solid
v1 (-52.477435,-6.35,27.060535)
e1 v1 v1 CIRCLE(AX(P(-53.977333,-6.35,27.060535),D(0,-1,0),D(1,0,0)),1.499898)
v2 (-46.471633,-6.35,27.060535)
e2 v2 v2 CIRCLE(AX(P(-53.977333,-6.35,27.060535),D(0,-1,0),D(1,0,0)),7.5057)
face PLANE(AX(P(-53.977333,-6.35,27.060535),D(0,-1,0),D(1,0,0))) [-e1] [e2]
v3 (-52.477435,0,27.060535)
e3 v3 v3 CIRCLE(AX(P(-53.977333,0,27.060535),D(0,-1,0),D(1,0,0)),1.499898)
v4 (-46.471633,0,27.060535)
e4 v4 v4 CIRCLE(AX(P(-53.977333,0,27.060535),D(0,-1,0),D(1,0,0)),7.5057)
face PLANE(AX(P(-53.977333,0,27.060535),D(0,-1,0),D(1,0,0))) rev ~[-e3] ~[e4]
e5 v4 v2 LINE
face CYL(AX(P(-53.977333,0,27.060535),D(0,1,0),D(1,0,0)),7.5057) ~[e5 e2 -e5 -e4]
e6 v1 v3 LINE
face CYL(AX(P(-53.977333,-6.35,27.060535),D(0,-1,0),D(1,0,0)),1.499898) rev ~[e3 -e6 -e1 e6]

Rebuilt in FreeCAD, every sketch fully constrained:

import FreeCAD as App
import Part
import Sketcher
from FreeCAD import Vector
Q = App.Units.Quantity

doc = App.newDocument("Part")
body = doc.addObject("PartDesign::Body", "Body")

# Sketch on XZ plane
sketch1 = body.newObject("Sketcher::SketchObject", "Sketch")
sketch1.AttachmentSupport = (doc.getObject("XZ_Plane"), [""])
sketch1.MapMode = "FlatFace"
sketch1.addGeometry(Part.Circle(Vector(-53.977333, 27.060535, 0), Vector(0, 0, 1), 7.5057), False)
sketch1.addConstraint([
    Sketcher.Constraint("Diameter", 0, Q("0.591 in")),
    Sketcher.Constraint("DistanceX", 0, 3, -1, 1, Q("53.977333 mm")),
    Sketcher.Constraint("DistanceY", -1, 1, 0, 3, Q("27.060535 mm")),
])
pad1 = body.newObject("PartDesign::Pad", "Pad")
pad1.Profile = sketch1
pad1.Length = Q("0.25 in")

# Sketch on XZ plane
sketch2 = body.newObject("Sketcher::SketchObject", "Sketch001")
sketch2.AttachmentSupport = (doc.getObject("XZ_Plane"), [""])
sketch2.MapMode = "FlatFace"
sketch2.AttachmentOffset = App.Placement(Vector(0, 0, 0.25 * 25.4), App.Rotation())
sketch2.addGeometry(Part.Circle(Vector(-53.977333, 27.060535, 0), Vector(0, 0, 1), 1.499898), False)
sketch2.addConstraint([
    Sketcher.Constraint("Diameter", 0, Q("2.999796 mm")),
    Sketcher.Constraint("DistanceX", 0, 3, -1, 1, Q("53.977333 mm")),
    Sketcher.Constraint("DistanceY", -1, 1, 0, 3, Q("27.060535 mm")),
])
pocket1 = body.newObject("PartDesign::Pocket", "Pocket")
pocket1.Profile = sketch2
pocket1.Type = "ThroughAll"

doc.recompute()
